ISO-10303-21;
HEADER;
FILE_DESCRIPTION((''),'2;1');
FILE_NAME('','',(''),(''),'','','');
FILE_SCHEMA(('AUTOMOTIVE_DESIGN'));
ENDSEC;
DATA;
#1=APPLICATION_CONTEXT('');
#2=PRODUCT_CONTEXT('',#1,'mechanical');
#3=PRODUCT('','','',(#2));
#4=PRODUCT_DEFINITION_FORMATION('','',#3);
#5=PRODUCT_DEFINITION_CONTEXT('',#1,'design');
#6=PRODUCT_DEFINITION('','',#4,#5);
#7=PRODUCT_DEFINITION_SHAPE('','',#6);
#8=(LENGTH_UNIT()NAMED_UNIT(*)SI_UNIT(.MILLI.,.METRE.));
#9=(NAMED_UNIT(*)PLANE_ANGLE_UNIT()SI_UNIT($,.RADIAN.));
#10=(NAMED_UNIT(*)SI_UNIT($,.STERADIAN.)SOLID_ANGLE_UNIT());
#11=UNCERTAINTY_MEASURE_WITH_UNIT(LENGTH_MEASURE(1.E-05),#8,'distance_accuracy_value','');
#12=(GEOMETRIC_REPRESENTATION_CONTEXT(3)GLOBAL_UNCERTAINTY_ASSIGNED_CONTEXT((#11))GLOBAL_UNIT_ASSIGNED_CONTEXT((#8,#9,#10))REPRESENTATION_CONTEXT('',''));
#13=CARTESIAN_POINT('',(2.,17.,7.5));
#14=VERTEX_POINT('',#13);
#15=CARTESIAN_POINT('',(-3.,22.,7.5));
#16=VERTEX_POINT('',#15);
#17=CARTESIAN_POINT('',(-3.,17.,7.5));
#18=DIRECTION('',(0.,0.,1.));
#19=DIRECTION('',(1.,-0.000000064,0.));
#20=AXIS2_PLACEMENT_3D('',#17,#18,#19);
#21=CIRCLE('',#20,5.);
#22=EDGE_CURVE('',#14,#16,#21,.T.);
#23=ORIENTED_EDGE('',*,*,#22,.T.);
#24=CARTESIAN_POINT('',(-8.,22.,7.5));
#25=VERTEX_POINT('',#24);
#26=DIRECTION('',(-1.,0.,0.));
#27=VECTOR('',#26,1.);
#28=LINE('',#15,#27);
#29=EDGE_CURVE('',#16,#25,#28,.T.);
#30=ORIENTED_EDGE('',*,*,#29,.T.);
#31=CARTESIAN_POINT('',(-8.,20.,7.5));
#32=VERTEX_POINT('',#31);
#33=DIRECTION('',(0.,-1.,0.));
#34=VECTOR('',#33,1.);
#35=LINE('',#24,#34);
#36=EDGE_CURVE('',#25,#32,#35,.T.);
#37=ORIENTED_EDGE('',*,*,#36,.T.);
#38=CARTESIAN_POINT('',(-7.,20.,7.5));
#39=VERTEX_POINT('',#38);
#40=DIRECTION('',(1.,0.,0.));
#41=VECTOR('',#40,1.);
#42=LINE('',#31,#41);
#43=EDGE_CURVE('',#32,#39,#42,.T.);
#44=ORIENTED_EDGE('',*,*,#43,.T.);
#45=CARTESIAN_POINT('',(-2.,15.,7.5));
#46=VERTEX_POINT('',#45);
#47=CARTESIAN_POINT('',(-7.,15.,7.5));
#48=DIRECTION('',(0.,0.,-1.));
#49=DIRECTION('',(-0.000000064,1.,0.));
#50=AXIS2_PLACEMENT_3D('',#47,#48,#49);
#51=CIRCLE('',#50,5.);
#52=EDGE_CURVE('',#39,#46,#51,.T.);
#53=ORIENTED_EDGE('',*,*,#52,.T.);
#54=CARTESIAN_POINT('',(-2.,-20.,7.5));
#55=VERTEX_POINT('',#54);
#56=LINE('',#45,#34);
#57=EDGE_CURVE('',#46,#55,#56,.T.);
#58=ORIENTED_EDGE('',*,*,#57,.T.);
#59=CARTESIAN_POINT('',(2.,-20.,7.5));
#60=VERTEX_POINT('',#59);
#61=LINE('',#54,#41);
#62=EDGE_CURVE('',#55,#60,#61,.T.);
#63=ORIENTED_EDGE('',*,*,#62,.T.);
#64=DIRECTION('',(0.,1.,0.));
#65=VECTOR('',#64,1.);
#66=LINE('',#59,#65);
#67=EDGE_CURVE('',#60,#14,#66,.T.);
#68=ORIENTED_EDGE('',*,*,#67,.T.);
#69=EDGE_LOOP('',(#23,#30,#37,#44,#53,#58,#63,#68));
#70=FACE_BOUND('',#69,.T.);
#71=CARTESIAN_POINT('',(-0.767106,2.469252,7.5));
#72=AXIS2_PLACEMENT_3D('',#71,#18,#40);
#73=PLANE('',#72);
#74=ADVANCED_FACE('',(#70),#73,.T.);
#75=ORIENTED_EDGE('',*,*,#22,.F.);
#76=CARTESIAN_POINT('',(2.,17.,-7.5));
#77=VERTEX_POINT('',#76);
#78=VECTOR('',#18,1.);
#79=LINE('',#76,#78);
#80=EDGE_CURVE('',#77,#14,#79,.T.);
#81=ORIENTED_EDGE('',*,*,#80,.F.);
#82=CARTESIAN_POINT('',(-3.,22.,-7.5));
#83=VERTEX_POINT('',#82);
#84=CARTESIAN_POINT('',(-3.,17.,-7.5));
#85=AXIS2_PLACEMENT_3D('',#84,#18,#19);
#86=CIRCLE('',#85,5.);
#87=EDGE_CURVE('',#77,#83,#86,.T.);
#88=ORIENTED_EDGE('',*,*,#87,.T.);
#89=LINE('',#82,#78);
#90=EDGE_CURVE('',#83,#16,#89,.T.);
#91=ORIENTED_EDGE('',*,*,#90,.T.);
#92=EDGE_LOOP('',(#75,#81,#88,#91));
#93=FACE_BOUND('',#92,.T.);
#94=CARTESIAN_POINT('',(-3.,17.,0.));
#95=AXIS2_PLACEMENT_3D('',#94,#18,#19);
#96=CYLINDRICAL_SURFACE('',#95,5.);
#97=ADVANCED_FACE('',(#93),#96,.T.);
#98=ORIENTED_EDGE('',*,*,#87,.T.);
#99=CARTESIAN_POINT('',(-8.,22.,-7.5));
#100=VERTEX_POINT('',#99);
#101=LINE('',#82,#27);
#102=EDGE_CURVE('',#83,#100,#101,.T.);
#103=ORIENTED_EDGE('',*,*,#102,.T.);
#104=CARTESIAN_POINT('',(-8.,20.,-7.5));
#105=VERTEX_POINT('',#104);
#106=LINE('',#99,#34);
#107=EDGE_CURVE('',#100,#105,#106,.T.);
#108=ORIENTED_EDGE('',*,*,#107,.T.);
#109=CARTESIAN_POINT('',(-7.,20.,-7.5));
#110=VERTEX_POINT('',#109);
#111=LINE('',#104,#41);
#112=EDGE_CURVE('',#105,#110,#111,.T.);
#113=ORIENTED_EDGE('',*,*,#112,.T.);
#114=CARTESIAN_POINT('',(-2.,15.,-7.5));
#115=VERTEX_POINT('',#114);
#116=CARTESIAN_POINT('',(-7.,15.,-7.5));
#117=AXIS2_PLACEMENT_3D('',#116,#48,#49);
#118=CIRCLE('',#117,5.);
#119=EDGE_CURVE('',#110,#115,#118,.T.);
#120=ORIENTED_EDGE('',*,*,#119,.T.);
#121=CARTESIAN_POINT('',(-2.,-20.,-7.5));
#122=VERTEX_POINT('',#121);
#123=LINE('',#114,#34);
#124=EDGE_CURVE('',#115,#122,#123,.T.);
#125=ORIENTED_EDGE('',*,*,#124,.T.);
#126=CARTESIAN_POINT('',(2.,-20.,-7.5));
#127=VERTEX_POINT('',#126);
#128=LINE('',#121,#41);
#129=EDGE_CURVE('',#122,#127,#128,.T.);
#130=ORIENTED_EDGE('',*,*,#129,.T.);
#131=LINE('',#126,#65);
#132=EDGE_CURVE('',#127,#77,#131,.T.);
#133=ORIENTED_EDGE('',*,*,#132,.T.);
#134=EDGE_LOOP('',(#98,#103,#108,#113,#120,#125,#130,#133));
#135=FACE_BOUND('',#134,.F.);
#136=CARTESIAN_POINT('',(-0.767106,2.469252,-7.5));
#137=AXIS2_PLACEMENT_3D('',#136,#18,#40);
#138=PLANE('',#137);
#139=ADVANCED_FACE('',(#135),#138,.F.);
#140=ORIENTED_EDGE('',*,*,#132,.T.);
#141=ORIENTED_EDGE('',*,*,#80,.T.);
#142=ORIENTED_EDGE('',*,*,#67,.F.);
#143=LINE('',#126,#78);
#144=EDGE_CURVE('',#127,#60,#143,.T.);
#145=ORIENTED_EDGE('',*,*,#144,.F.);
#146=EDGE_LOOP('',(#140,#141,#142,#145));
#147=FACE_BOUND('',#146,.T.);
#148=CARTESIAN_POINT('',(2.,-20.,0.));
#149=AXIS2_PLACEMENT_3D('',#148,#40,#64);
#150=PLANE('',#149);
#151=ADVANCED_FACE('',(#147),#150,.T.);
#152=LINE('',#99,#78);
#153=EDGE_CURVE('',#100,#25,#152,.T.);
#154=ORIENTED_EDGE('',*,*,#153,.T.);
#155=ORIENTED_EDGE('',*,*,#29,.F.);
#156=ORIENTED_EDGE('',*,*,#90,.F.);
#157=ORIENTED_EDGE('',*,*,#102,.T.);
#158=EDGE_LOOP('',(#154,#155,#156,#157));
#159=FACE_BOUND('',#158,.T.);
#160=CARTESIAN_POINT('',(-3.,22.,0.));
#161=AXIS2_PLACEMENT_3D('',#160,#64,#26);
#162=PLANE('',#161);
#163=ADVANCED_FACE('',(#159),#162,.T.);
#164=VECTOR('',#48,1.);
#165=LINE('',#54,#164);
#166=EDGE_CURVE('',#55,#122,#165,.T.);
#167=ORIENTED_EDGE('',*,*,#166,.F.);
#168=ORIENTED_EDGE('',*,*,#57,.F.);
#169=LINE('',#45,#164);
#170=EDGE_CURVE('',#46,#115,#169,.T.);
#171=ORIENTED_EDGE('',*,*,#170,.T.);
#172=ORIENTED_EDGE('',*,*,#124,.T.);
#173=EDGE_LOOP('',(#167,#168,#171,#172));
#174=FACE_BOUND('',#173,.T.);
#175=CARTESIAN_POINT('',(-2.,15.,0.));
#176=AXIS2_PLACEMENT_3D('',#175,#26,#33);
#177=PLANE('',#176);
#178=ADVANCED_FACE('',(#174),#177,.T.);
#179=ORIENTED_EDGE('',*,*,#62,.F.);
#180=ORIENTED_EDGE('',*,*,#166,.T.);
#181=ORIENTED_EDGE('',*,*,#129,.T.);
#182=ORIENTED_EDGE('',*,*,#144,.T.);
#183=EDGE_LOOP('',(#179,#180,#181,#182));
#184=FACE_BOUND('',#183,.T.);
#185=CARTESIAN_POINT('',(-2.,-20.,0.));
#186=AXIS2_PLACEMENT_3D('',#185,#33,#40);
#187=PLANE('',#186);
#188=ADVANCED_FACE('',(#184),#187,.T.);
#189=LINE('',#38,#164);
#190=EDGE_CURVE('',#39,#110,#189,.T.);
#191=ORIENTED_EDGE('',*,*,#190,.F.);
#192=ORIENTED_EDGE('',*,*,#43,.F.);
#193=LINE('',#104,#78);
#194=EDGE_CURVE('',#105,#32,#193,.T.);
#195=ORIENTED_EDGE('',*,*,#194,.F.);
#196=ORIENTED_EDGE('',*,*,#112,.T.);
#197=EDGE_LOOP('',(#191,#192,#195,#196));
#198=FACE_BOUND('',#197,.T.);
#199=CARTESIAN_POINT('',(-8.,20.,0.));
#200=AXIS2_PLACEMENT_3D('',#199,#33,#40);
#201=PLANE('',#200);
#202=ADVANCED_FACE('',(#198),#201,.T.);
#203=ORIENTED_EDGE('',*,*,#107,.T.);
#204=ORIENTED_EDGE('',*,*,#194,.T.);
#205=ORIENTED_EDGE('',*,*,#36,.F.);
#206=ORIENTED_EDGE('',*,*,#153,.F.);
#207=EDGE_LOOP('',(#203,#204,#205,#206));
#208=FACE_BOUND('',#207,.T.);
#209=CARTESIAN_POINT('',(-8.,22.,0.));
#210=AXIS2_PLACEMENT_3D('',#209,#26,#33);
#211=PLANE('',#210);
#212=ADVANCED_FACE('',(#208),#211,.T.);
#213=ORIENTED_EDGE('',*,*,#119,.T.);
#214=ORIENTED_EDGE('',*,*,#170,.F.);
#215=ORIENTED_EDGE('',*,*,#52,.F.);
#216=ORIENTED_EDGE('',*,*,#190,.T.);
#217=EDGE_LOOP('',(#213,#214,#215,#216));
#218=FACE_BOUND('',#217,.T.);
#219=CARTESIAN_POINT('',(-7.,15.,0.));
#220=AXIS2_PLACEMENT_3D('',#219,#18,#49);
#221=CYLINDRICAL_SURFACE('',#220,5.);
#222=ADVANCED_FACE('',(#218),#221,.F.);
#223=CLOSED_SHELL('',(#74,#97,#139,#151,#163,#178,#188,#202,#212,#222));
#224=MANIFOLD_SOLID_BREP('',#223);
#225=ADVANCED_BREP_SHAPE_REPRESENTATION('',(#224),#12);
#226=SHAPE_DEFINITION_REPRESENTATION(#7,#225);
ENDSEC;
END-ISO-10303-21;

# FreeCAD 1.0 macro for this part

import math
import FreeCAD as App
import Part
import Sketcher

V = App.Vector

doc = App.newDocument("Part")
body = doc.addObject("PartDesign::Body", "Body")

sketch1 = doc.addObject("Sketcher::SketchObject", "Sketch")
body.addObject(sketch1)
sketch1.AttachmentSupport = (doc.XY_Plane, [""])
sketch1.MapMode = "FlatFace"
sketch1.addGeometry([
    Part.LineSegment(V(-2, -20, 0), V(2, -20, 0)),
    Part.LineSegment(V(2, -20, 0), V(2, 17, 0)),
    Part.ArcOfCircle(Part.Circle(V(-3, 17, 0), V(0, 0, 1), 5), math.radians(0), math.radians(90)),
    Part.LineSegment(V(-3, 22, 0), V(-8, 22, 0)),
    Part.LineSegment(V(-8, 22, 0), V(-8, 20, 0)),
    Part.LineSegment(V(-8, 20, 0), V(-7, 20, 0)),
    Part.ArcOfCircle(Part.Circle(V(-7, 15, 0), V(0, 0, 1), 5), math.radians(0), math.radians(90)),
    Part.LineSegment(V(-2, 15, 0), V(-2, -20, 0)),
], False)
sketch1.addConstraint([
    Sketcher.Constraint("Coincident", 0, 2, 1, 1),
    Sketcher.Constraint("Tangent", 1, 2, 2, 1),
    Sketcher.Constraint("Tangent", 2, 2, 3, 1),
    Sketcher.Constraint("Coincident", 3, 2, 4, 1),
    Sketcher.Constraint("Coincident", 4, 2, 5, 1),
    Sketcher.Constraint("Tangent", 5, 2, 6, 2),
    Sketcher.Constraint("Tangent", 6, 1, 7, 1),
    Sketcher.Constraint("Coincident", 7, 2, 0, 1),
    Sketcher.Constraint("Horizontal", 0),
    Sketcher.Constraint("Vertical", 1),
    Sketcher.Constraint("Horizontal", 3),
    Sketcher.Constraint("Vertical", 4),
    Sketcher.Constraint("Horizontal", 5),
    Sketcher.Constraint("Vertical", 7),
    Sketcher.Constraint("Equal", 2, 6),
    Sketcher.Constraint("Radius", 2, 5.0),
    Sketcher.Constraint("DistanceX", 0, 1, 0, 2, 4.0),
    Sketcher.Constraint("DistanceX", 3, 2, 3, 1, 5.0),
    Sketcher.Constraint("DistanceY", 1, 1, 1, 2, 37.0),
    Sketcher.Constraint("DistanceY", 4, 2, 4, 1, 2.0),
    Sketcher.Constraint("DistanceX", 2, 3, -1, 1, 3.0),
    Sketcher.Constraint("DistanceY", -1, 1, 2, 3, 17.0),
])
pad1 = doc.addObject("PartDesign::Pad", "Pad")
body.addObject(pad1)
pad1.Profile = sketch1
pad1.Length = 15
pad1.Midplane = True

doc.recompute()
